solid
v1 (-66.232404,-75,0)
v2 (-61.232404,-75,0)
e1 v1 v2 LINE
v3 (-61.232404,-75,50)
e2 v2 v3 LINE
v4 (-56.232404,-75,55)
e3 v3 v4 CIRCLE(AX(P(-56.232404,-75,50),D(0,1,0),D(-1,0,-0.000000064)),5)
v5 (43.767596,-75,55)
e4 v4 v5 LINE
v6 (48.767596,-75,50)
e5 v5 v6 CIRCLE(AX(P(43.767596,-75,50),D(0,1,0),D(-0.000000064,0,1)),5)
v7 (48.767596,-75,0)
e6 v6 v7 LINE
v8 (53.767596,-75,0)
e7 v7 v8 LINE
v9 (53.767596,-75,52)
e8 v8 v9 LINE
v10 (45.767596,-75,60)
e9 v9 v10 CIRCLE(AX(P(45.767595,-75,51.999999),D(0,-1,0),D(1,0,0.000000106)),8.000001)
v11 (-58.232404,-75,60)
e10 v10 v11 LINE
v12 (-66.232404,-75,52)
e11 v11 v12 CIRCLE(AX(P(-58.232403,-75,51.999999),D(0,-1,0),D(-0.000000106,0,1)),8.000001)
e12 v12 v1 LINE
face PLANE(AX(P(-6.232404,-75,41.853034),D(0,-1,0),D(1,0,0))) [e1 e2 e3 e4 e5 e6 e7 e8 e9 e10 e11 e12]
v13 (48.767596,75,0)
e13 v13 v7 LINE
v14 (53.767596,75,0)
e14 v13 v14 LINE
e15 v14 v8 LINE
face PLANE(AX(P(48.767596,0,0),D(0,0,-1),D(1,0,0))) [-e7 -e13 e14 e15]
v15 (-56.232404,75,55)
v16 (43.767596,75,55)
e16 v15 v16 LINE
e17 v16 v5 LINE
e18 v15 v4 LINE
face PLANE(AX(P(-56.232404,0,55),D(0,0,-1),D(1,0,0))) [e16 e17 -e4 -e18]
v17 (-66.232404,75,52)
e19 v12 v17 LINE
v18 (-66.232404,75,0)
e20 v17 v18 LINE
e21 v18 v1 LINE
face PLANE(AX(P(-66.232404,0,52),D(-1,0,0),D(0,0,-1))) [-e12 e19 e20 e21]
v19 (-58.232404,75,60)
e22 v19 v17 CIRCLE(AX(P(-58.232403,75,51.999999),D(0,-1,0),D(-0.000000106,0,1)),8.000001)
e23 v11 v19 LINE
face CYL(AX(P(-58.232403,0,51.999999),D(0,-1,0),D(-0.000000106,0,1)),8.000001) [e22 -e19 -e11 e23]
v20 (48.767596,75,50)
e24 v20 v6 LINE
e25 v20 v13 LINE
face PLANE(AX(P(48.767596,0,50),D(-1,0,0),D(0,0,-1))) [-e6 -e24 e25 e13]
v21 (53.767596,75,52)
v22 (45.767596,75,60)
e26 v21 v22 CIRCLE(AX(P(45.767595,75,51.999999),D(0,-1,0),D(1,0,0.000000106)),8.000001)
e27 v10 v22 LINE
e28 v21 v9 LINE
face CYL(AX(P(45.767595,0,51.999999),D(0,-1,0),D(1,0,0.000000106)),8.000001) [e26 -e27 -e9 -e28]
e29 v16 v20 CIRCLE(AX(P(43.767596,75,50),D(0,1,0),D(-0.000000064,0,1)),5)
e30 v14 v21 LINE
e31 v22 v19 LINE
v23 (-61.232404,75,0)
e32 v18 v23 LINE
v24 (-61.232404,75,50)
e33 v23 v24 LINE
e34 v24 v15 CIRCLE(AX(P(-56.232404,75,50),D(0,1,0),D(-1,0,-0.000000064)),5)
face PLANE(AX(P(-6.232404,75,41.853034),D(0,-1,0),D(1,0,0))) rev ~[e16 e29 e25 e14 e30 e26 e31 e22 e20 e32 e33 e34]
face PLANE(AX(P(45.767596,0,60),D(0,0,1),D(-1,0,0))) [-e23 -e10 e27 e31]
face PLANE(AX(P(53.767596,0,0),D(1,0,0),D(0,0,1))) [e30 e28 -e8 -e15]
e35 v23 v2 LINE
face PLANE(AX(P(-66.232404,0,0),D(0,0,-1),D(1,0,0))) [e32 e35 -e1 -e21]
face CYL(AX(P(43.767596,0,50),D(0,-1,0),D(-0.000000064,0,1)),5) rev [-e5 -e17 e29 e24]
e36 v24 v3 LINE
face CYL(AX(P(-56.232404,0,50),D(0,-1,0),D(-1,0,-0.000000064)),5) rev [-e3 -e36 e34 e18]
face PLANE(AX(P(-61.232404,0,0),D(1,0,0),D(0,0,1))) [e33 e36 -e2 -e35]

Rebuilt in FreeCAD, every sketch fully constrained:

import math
import FreeCAD as App
import Part
import Sketcher

V = App.Vector
Q = App.Units.Quantity

doc = App.newDocument("Part")
body = doc.addObject("PartDesign::Body", "Body")

sketch1 = body.newObject("Sketcher::SketchObject", "Sketch")
sketch1.AttachmentSupport = (doc.getObject("XZ_Plane"), [""])
sketch1.MapMode = "FlatFace"
sketch1.addGeometry([
    Part.LineSegment(V(-66.2, 52, 0), V(-66.2, 0, 0)),
    Part.LineSegment(V(-66.2, 0, 0), V(-61.2, 0, 0)),
    Part.LineSegment(V(-61.2, 0, 0), V(-61.2, 50, 0)),
    Part.ArcOfCircle(Part.Circle(V(-56.2, 50, 0), V(0, 0, 1), 5), math.radians(90), math.radians(180)),
    Part.LineSegment(V(-56.2, 55, 0), V(43.8, 55, 0)),
    Part.ArcOfCircle(Part.Circle(V(43.8, 50, 0), V(0, 0, 1), 5), math.radians(0), math.radians(90)),
    Part.LineSegment(V(48.8, 50, 0), V(48.8, 0, 0)),
    Part.LineSegment(V(48.8, 0, 0), V(53.8, 0, 0)),
    Part.LineSegment(V(53.8, 0, 0), V(53.8, 52, 0)),
    Part.ArcOfCircle(Part.Circle(V(45.8, 52, 0), V(0, 0, 1), 8), math.radians(0), math.radians(90)),
    Part.LineSegment(V(45.8, 60, 0), V(-58.2, 60, 0)),
    Part.ArcOfCircle(Part.Circle(V(-58.2, 52, 0), V(0, 0, 1), 8), math.radians(90), math.radians(180)),
], False)
sketch1.addConstraint([
    Sketcher.Constraint("Coincident", 0, 2, 1, 1),
    Sketcher.Constraint("Coincident", 1, 2, 2, 1),
    Sketcher.Constraint("Tangent", 2, 2, 3, 2),
    Sketcher.Constraint("Tangent", 3, 1, 4, 1),
    Sketcher.Constraint("Tangent", 4, 2, 5, 2),
    Sketcher.Constraint("Tangent", 5, 1, 6, 1),
    Sketcher.Constraint("Coincident", 6, 2, 7, 1),
    Sketcher.Constraint("Coincident", 7, 2, 8, 1),
    Sketcher.Constraint("Tangent", 8, 2, 9, 1),
    Sketcher.Constraint("Tangent", 9, 2, 10, 1),
    Sketcher.Constraint("Tangent", 10, 2, 11, 1),
    Sketcher.Constraint("Tangent", 11, 2, 0, 1),
    Sketcher.Constraint("Vertical", 0),
    Sketcher.Constraint("Horizontal", 1),
    Sketcher.Constraint("Vertical", 2),
    Sketcher.Constraint("Horizontal", 4),
    Sketcher.Constraint("Vertical", 6),
    Sketcher.Constraint("Horizontal", 7),
    Sketcher.Constraint("Vertical", 8),
    Sketcher.Constraint("Horizontal", 10),
    Sketcher.Constraint("Equal", 3, 5),
    Sketcher.Constraint("Equal", 9, 11),
    Sketcher.Constraint("PointOnObject", 0, 2, -1),
    Sketcher.Constraint("PointOnObject", 6, 2, -1),
    Sketcher.Constraint("Equal", 1, 7),
    Sketcher.Constraint("Radius", 3, Q("5 mm")),
    Sketcher.Constraint("Radius", 9, Q("8.000001 mm")),
    Sketcher.Constraint("DistanceX", 1, 1, 1, 2, Q("5 mm")),
    Sketcher.Constraint("DistanceX", 4, 1, 4, 2, Q("100 mm")),
    Sketcher.Constraint("DistanceY", 0, 2, 0, 1, Q("52 mm")),
    Sketcher.Constraint("DistanceY", 2, 1, 2, 2, Q("50 mm")),
    Sketcher.Constraint("DistanceX", 3, 3, -1, 1, Q("56.232404 mm")),
])
pad1 = body.newObject("PartDesign::Pad", "Pad")
pad1.Profile = sketch1
pad1.Length = 150
pad1.Midplane = True

doc.recompute()
